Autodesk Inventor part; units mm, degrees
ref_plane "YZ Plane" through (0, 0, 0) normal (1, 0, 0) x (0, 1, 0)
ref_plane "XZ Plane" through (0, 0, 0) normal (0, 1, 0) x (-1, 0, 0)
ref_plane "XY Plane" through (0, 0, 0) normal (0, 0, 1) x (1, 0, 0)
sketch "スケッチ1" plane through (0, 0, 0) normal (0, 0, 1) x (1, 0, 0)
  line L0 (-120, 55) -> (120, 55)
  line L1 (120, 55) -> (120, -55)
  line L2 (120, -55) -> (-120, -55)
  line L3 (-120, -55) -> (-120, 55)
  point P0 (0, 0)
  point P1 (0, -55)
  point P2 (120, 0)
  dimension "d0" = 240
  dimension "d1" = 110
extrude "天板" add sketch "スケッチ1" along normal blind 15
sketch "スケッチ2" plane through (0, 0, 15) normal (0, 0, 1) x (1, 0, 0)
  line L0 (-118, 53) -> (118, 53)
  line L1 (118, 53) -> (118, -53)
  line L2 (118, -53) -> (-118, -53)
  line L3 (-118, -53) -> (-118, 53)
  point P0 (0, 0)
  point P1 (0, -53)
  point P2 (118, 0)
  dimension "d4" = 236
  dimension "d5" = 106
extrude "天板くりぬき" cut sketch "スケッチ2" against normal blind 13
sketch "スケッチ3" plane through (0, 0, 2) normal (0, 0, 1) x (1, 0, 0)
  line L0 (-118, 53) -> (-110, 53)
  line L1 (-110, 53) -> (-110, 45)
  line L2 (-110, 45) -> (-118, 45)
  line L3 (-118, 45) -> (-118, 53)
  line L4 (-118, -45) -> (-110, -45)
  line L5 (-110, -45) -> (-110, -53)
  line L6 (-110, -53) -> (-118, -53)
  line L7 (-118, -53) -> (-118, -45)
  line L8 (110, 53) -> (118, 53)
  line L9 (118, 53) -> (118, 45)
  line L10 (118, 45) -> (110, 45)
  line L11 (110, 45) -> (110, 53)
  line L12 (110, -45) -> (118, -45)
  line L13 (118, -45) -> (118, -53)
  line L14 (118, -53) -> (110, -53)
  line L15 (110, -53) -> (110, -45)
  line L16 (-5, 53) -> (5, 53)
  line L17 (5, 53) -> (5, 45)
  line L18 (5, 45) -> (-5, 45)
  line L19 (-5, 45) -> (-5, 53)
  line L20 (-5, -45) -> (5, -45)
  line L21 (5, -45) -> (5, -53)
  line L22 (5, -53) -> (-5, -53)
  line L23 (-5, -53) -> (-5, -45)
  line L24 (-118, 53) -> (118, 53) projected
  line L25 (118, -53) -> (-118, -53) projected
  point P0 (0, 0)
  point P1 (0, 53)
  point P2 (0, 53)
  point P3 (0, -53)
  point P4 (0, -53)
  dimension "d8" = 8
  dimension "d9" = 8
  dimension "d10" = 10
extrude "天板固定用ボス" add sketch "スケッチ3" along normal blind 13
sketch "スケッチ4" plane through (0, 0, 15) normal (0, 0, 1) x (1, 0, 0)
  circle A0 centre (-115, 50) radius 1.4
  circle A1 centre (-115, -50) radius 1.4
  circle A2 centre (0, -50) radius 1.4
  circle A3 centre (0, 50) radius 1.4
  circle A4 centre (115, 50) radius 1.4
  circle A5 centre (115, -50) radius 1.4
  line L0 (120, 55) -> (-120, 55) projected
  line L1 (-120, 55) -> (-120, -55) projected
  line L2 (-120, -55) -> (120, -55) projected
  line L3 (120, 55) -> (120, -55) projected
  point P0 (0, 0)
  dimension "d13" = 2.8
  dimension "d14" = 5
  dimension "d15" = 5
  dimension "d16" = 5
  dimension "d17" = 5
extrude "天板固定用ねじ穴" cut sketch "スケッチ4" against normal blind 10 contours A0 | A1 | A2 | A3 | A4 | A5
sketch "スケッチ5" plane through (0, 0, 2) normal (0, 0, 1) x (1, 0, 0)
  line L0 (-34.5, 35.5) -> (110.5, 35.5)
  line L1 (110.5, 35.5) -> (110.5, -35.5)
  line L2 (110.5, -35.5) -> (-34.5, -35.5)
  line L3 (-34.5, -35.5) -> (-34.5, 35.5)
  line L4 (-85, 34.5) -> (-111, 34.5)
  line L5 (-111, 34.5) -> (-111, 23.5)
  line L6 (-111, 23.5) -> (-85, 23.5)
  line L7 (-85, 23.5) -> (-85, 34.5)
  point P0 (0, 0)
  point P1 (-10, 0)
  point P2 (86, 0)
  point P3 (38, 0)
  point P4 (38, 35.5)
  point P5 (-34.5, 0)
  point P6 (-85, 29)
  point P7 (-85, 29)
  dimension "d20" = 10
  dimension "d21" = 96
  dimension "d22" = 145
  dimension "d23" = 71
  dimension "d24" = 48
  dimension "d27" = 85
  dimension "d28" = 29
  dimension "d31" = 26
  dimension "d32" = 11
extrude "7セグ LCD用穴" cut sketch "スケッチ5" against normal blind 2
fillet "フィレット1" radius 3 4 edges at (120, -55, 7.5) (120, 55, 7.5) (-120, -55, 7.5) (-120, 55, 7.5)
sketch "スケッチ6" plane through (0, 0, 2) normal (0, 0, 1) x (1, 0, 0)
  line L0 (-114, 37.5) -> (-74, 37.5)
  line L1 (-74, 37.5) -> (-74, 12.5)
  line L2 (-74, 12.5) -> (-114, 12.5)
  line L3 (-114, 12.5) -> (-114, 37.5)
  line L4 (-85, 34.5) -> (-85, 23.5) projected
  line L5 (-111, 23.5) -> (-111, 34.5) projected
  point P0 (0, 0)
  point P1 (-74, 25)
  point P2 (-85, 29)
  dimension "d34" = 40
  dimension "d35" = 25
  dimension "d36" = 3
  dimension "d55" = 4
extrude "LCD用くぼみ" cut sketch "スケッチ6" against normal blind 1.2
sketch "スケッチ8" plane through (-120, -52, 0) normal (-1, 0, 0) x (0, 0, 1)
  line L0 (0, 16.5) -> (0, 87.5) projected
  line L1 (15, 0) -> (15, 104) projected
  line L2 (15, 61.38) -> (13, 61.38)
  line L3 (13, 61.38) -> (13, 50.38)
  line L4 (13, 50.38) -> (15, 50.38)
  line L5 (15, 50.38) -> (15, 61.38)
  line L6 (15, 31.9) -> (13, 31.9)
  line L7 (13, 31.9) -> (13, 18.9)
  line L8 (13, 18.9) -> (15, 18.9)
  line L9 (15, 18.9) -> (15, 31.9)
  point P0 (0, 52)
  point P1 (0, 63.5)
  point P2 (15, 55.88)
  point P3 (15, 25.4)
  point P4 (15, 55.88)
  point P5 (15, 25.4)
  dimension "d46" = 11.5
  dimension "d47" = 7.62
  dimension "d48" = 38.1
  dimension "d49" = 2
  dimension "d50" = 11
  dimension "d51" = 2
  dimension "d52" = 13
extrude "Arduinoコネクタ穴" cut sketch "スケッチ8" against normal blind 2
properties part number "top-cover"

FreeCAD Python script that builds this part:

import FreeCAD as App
import Part
import Sketcher
from FreeCAD import Vector


def edges_at(feature, points):
    """Names of the edges that pass closest to the given points."""
    edges = feature.Shape.Edges
    near = lambda p: min(range(len(edges)), key=lambda i: edges[i].distToShape(Part.Vertex(*p))[0])
    return sorted({f"Edge{near(p) + 1}" for p in points})


def add_polygon(sketch, points):
    """Adds a closed chain of lines whose ends are joined by coincident constraints."""
    first, n = sketch.GeometryCount, len(points)
    for a, b in zip(points, points[1:] + points[:1]):
        sketch.addGeometry(Part.LineSegment(App.Vector(*a, 0), App.Vector(*b, 0)), False)
    for i in range(n):
        sketch.addConstraint(Sketcher.Constraint("Coincident", first + i, 2, first + (i + 1) % n, 1))

doc = App.newDocument("Part")
body = doc.addObject("PartDesign::Body", "Body")

sketch1 = doc.addObject("Sketcher::SketchObject", "Sketch")
body.addObject(sketch1)
sketch1.AttachmentSupport = (doc.XY_Plane, [""])
sketch1.MapMode = "FlatFace"
add_polygon(sketch1, [(120, 55), (-120, 55), (-120, -55), (120, -55)])
sketch1.addConstraint([
    Sketcher.Constraint("Horizontal", 0),
    Sketcher.Constraint("Vertical", 1),
    Sketcher.Constraint("Horizontal", 2),
    Sketcher.Constraint("Vertical", 3),
    Sketcher.Constraint("Symmetric", 0, 2, 2, 2, -1, 1),
    Sketcher.Constraint("DistanceX", 0, 2, 0, 1, 240.0),
    Sketcher.Constraint("DistanceY", 1, 2, 1, 1, 110.0),
])
pad1 = doc.addObject("PartDesign::Pad", "Pad")
body.addObject(pad1)
pad1.Profile = sketch1
pad1.Length = 15

sketch2 = doc.addObject("Sketcher::SketchObject", "Sketch001")
body.addObject(sketch2)
sketch2.AttachmentSupport = (doc.XY_Plane, [""])
sketch2.MapMode = "FlatFace"
sketch2.AttachmentOffset = App.Placement(Vector(0, 0, 15), App.Rotation())
add_polygon(sketch2, [(118, 53), (-118, 53), (-118, -53), (118, -53)])
sketch2.addConstraint([
    Sketcher.Constraint("Horizontal", 0),
    Sketcher.Constraint("Vertical", 1),
    Sketcher.Constraint("Horizontal", 2),
    Sketcher.Constraint("Vertical", 3),
    Sketcher.Constraint("Symmetric", 0, 2, 2, 2, -1, 1),
    Sketcher.Constraint("DistanceX", 0, 2, 0, 1, 236.0),
    Sketcher.Constraint("DistanceY", 1, 2, 1, 1, 106.0),
])
pocket1 = doc.addObject("PartDesign::Pocket", "Pocket")
body.addObject(pocket1)
pocket1.Profile = sketch2
pocket1.Length = 13

sketch3 = doc.addObject("Sketcher::SketchObject", "Sketch002")
body.addObject(sketch3)
sketch3.AttachmentSupport = (doc.XY_Plane, [""])
sketch3.MapMode = "FlatFace"
sketch3.AttachmentOffset = App.Placement(Vector(0, 0, 2), App.Rotation())
add_polygon(sketch3, [(118, 53), (110, 53), (110, 45), (118, 45)])
add_polygon(sketch3, [(5, 53), (-5, 53), (-5, 45), (5, 45)])
add_polygon(sketch3, [(-110, 53), (-118, 53), (-118, 45), (-110, 45)])
add_polygon(sketch3, [(110, -45), (110, -53), (118, -53), (118, -45)])
add_polygon(sketch3, [(-5, -45), (-5, -53), (5, -53), (5, -45)])
add_polygon(sketch3, [(-110, -45), (-118, -45), (-118, -53), (-110, -53)])
sketch3.addConstraint([
    Sketcher.Constraint("Horizontal", 0),
    Sketcher.Constraint("Vertical", 1),
    Sketcher.Constraint("Horizontal", 2),
    Sketcher.Constraint("Vertical", 3),
    Sketcher.Constraint("Horizontal", 4),
    Sketcher.Constraint("Vertical", 5),
    Sketcher.Constraint("Horizontal", 6),
    Sketcher.Constraint("Vertical", 7),
    Sketcher.Constraint("Horizontal", 8),
    Sketcher.Constraint("Vertical", 9),
    Sketcher.Constraint("Horizontal", 10),
    Sketcher.Constraint("Vertical", 11),
    Sketcher.Constraint("Vertical", 12),
    Sketcher.Constraint("Horizontal", 13),
    Sketcher.Constraint("Vertical", 14),
    Sketcher.Constraint("Horizontal", 15),
    Sketcher.Constraint("Vertical", 16),
    Sketcher.Constraint("Horizontal", 17),
    Sketcher.Constraint("Vertical", 18),
    Sketcher.Constraint("Horizontal", 19),
    Sketcher.Constraint("Horizontal", 20),
    Sketcher.Constraint("Vertical", 21),
    Sketcher.Constraint("Horizontal", 22),
    Sketcher.Constraint("Vertical", 23),
    Sketcher.Constraint("Symmetric", 11, 2, 12, 2, -1, 1),
    Sketcher.Constraint("Symmetric", 9, 2, 14, 2, -1, 1),
    Sketcher.Constraint("Symmetric", 7, 2, 16, 2, -1, 1),
    Sketcher.Constraint("Symmetric", 5, 2, 18, 2, -1, 1),
    Sketcher.Constraint("Symmetric", 2, 2, 20, 2, -1, 1),
    Sketcher.Constraint("Symmetric", 0, 2, 22, 2, -1, 1),
    Sketcher.Constraint("Symmetric", 3, 2, 8, 2, -2),
    Sketcher.Constraint("Symmetric", 1, 2, 10, 2, -2),
    Sketcher.Constraint("Horizontal", 3, 2, 4, 2),
    Sketcher.Constraint("Horizontal", 2, 2, 5, 2),
    Sketcher.Constraint("Vertical", 5, 2, 16, 2),
    Sketcher.Constraint("Equal", 22, 1),
    Sketcher.Constraint("DistanceX", 0, 2, 0, 1, 8.0),
    Sketcher.Constraint("DistanceX", 4, 2, 4, 1, 10.0),
    Sketcher.Constraint("DistanceX", -1, 1, 0, 2, 110.0),
    Sketcher.Constraint("DistanceY", -1, 1, 0, 2, 53.0),
])
pad2 = doc.addObject("PartDesign::Pad", "Pad001")
body.addObject(pad2)
pad2.Profile = sketch3
pad2.Length = 13

sketch4 = doc.addObject("Sketcher::SketchObject", "Sketch003")
body.addObject(sketch4)
sketch4.AttachmentSupport = (doc.XY_Plane, [""])
sketch4.MapMode = "FlatFace"
sketch4.AttachmentOffset = App.Placement(Vector(0, 0, 15), App.Rotation())
sketch4.addGeometry([
    Part.Circle(Vector(-115, 50, 0), Vector(0, 0, 1), 1.4),
    Part.Circle(Vector(-115, -50, 0), Vector(0, 0, 1), 1.4),
    Part.Circle(Vector(0, -50, 0), Vector(0, 0, 1), 1.4),
    Part.Circle(Vector(0, 50, 0), Vector(0, 0, 1), 1.4),
    Part.Circle(Vector(115, 50, 0), Vector(0, 0, 1), 1.4),
    Part.Circle(Vector(115, -50, 0), Vector(0, 0, 1), 1.4),
], False)
sketch4.addConstraint([
    Sketcher.Constraint("Equal", 0, 1),
    Sketcher.Constraint("Equal", 1, 2),
    Sketcher.Constraint("Equal", 2, 3),
    Sketcher.Constraint("Equal", 3, 4),
    Sketcher.Constraint("Equal", 4, 5),
    Sketcher.Constraint("Symmetric", 2, 3, 3, 3, -1, 1),
    Sketcher.Constraint("Symmetric", 1, 3, 4, 3, -1, 1),
    Sketcher.Constraint("Symmetric", 0, 3, 5, 3, -1, 1),
    Sketcher.Constraint("Symmetric", 0, 3, 4, 3, -2),
    Sketcher.Constraint("PointOnObject", 2, 3, -2),
    Sketcher.Constraint("Horizontal", 1, 3, 2, 3),
    Sketcher.Constraint("Diameter", 0, 2.8),
    Sketcher.Constraint("DistanceX", 0, 3, -1, 1, 115.0),
    Sketcher.Constraint("DistanceY", -1, 1, 0, 3, 50.0),
])
pocket2 = doc.addObject("PartDesign::Pocket", "Pocket001")
body.addObject(pocket2)
pocket2.Profile = sketch4
pocket2.Length = 10

sketch5 = doc.addObject("Sketcher::SketchObject", "Sketch004")
body.addObject(sketch5)
sketch5.AttachmentSupport = (doc.XY_Plane, [""])
sketch5.MapMode = "FlatFace"
sketch5.AttachmentOffset = App.Placement(Vector(0, 0, 2), App.Rotation())
add_polygon(sketch5, [(110, 36), (-34, 36), (-34, -36), (110, -36)])
add_polygon(sketch5, [(-85, 24), (-85, 34), (-111, 34), (-111, 24)])
sketch5.addConstraint([
    Sketcher.Constraint("Horizontal", 0),
    Sketcher.Constraint("Vertical", 1),
    Sketcher.Constraint("Horizontal", 2),
    Sketcher.Constraint("Vertical", 3),
    Sketcher.Constraint("Vertical", 4),
    Sketcher.Constraint("Horizontal", 5),
    Sketcher.Constraint("Vertical", 6),
    Sketcher.Constraint("Horizontal", 7),
    Sketcher.Constraint("DistanceX", 0, 2, 0, 1, 145.0),
    Sketcher.Constraint("DistanceX", 5, 2, 5, 1, 26.0),
    Sketcher.Constraint("DistanceY", 1, 2, 1, 1, 71.0),
    Sketcher.Constraint("DistanceY", 4, 1, 4, 2, 11.0),
    Sketcher.Constraint("DistanceX", 4, 2, -1, 1, 85.0),
    Sketcher.Constraint("DistanceY", 4, 2, 0, 2, 1.0),
    Sketcher.Constraint("DistanceX", 0, 2, -1, 1, 34.5),
    Sketcher.Constraint("DistanceY", -1, 1, 0, 2, 35.5),
])
pocket3 = doc.addObject("PartDesign::Pocket", "Pocket002")
body.addObject(pocket3)
pocket3.Profile = sketch5
pocket3.Length = 2
doc.recompute()

fillet = doc.addObject("PartDesign::Fillet", "Fillet")
body.addObject(fillet)
fillet.Base = (pocket3, edges_at(pocket3, [
    (120, -55, 7.5),
    (120, 55, 7.5),
    (-120, -55, 7.5),
    (-120, 55, 7.5),
]))
fillet.Radius = 3

sketch6 = doc.addObject("Sketcher::SketchObject", "Sketch005")
body.addObject(sketch6)
sketch6.AttachmentSupport = (doc.XY_Plane, [""])
sketch6.MapMode = "FlatFace"
sketch6.AttachmentOffset = App.Placement(Vector(0, 0, 2), App.Rotation())
add_polygon(sketch6, [(-74, 38), (-114, 38), (-114, 12), (-74, 12)])
sketch6.addConstraint([
    Sketcher.Constraint("Horizontal", 0),
    Sketcher.Constraint("Vertical", 1),
    Sketcher.Constraint("Horizontal", 2),
    Sketcher.Constraint("Vertical", 3),
    Sketcher.Constraint("DistanceX", 0, 2, 0, 1, 40.0),
    Sketcher.Constraint("DistanceY", 1, 2, 1, 1, 25.0),
    Sketcher.Constraint("DistanceX", 0, 2, -1, 1, 114.0),
    Sketcher.Constraint("DistanceY", -1, 1, 0, 2, 37.5),
])
pocket4 = doc.addObject("PartDesign::Pocket", "Pocket003")
body.addObject(pocket4)
pocket4.Profile = sketch6
pocket4.Length = 1.2

sketch7 = doc.addObject("Sketcher::SketchObject", "Sketch006")
body.addObject(sketch7)
sketch7.AttachmentSupport = (doc.YZ_Plane, [""])
sketch7.MapMode = "FlatFace"
sketch7.AttachmentOffset = App.Placement(Vector(0, 0, -120), App.Rotation())
add_polygon(sketch7, [(-33.1, 13), (-33.1, 15), (-20.1, 15), (-20.1, 13)])
add_polygon(sketch7, [(-1.6, 13), (-1.6, 15), (9.4, 15), (9.4, 13)])
sketch7.addConstraint([
    Sketcher.Constraint("Vertical", 0),
    Sketcher.Constraint("Horizontal", 1),
    Sketcher.Constraint("Vertical", 2),
    Sketcher.Constraint("Horizontal", 3),
    Sketcher.Constraint("Vertical", 4),
    Sketcher.Constraint("Horizontal", 5),
    Sketcher.Constraint("Vertical", 6),
    Sketcher.Constraint("Horizontal", 7),
    Sketcher.Constraint("Horizontal", 1, 2, 4, 2),
    Sketcher.Constraint("Horizontal", 3, 2, 6, 2),
    Sketcher.Constraint("DistanceX", 1, 1, 1, 2, 13.0),
    Sketcher.Constraint("DistanceX", 5, 1, 5, 2, 11.0),
    Sketcher.Constraint("DistanceY", 0, 1, 0, 2, 2.0),
    Sketcher.Constraint("DistanceY", -1, 1, 2, 2, 13.0),
    Sketcher.Constraint("DistanceX", 0, 2, -1, 1, 33.1),
    Sketcher.Constraint("DistanceX", 4, 2, -1, 1, 1.62),
])
pocket5 = doc.addObject("PartDesign::Pocket", "Pocket004")
body.addObject(pocket5)
pocket5.Profile = sketch7
pocket5.Length = 2
pocket5.Reversed = True

doc.recompute()
